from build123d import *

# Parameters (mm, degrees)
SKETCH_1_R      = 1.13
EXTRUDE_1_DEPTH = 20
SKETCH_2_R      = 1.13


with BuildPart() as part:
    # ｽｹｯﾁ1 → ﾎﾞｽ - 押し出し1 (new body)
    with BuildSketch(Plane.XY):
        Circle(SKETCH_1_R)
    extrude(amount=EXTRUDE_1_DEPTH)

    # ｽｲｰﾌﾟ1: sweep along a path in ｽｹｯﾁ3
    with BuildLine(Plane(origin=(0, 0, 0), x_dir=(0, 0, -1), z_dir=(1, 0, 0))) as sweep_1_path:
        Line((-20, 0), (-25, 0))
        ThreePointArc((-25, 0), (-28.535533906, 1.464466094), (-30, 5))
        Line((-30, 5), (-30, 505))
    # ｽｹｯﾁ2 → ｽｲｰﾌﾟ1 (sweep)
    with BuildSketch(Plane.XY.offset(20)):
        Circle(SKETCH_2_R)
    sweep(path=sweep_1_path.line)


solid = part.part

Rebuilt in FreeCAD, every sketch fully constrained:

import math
import FreeCAD as App
import Part
import Sketcher
from FreeCAD import Vector
Q = App.Units.Quantity

doc = App.newDocument("Part")
body = doc.addObject("PartDesign::Body", "Body")

# Sketch on XY plane
sketch1 = body.newObject("Sketcher::SketchObject", "Sketch")
sketch1.AttachmentSupport = (doc.getObject("XY_Plane"), [""])
sketch1.MapMode = "FlatFace"
sketch1.addGeometry(Part.Circle(Vector(0, 0, 0), Vector(0, 0, 1), 1.1), False)
sketch1.addConstraint([
    Sketcher.Constraint("Coincident", 0, 3, -1, 1),
    Sketcher.Constraint("Diameter", 0, Q("2.26 mm")),
])
pad1 = body.newObject("PartDesign::Pad", "Pad")
pad1.Profile = sketch1
pad1.Length = 20

# Sketch on XY plane
sketch2 = body.newObject("Sketcher::SketchObject", "Sketch001")
sketch2.AttachmentSupport = (doc.getObject("XY_Plane"), [""])
sketch2.MapMode = "FlatFace"
sketch2.AttachmentOffset = App.Placement(Vector(0, 0, 20), App.Rotation())
sketch2.addGeometry(Part.Circle(Vector(0, 0, 0), Vector(0, 0, 1), 1.1), False)
sketch2.addConstraint([
    Sketcher.Constraint("Coincident", 0, 3, -1, 1),
    Sketcher.Constraint("Diameter", 0, Q("2.26 mm")),
])

# Sketch on YZ plane
sketch3 = body.newObject("Sketcher::SketchObject", "Sketch002")
sketch3.AttachmentSupport = (doc.getObject("YZ_Plane"), [""])
sketch3.MapMode = "FlatFace"
sketch3.addGeometry([
    Part.LineSegment(Vector(0, 20, 0), Vector(0, 25, 0)),
    Part.ArcOfCircle(Part.Circle(Vector(5, 25, 0), Vector(0, 0, 1), 5), math.radians(90), math.radians(180)),
    Part.LineSegment(Vector(5, 30, 0), Vector(505, 30, 0)),
], False)
sketch3.addConstraint([
    Sketcher.Constraint("Tangent", 0, 2, 1, 2),
    Sketcher.Constraint("Tangent", 1, 1, 2, 1),
    Sketcher.Constraint("Vertical", 0),
    Sketcher.Constraint("Horizontal", 2),
    Sketcher.Constraint("PointOnObject", 0, 1, -2),
    Sketcher.Constraint("Radius", 1, Q("5 mm")),
    Sketcher.Constraint("DistanceX", 2, 1, 2, 2, Q("500 mm")),
    Sketcher.Constraint("DistanceY", 0, 1, 0, 2, Q("5 mm")),
    Sketcher.Constraint("DistanceY", -1, 1, 1, 3, Q("25 mm")),
])
doc.recompute()

additivepipe = body.newObject("PartDesign::AdditivePipe", "AdditivePipe")
additivepipe.Profile = sketch2
additivepipe.Spine = (sketch3, ["Edge1", "Edge2", "Edge3"])

doc.recompute()
